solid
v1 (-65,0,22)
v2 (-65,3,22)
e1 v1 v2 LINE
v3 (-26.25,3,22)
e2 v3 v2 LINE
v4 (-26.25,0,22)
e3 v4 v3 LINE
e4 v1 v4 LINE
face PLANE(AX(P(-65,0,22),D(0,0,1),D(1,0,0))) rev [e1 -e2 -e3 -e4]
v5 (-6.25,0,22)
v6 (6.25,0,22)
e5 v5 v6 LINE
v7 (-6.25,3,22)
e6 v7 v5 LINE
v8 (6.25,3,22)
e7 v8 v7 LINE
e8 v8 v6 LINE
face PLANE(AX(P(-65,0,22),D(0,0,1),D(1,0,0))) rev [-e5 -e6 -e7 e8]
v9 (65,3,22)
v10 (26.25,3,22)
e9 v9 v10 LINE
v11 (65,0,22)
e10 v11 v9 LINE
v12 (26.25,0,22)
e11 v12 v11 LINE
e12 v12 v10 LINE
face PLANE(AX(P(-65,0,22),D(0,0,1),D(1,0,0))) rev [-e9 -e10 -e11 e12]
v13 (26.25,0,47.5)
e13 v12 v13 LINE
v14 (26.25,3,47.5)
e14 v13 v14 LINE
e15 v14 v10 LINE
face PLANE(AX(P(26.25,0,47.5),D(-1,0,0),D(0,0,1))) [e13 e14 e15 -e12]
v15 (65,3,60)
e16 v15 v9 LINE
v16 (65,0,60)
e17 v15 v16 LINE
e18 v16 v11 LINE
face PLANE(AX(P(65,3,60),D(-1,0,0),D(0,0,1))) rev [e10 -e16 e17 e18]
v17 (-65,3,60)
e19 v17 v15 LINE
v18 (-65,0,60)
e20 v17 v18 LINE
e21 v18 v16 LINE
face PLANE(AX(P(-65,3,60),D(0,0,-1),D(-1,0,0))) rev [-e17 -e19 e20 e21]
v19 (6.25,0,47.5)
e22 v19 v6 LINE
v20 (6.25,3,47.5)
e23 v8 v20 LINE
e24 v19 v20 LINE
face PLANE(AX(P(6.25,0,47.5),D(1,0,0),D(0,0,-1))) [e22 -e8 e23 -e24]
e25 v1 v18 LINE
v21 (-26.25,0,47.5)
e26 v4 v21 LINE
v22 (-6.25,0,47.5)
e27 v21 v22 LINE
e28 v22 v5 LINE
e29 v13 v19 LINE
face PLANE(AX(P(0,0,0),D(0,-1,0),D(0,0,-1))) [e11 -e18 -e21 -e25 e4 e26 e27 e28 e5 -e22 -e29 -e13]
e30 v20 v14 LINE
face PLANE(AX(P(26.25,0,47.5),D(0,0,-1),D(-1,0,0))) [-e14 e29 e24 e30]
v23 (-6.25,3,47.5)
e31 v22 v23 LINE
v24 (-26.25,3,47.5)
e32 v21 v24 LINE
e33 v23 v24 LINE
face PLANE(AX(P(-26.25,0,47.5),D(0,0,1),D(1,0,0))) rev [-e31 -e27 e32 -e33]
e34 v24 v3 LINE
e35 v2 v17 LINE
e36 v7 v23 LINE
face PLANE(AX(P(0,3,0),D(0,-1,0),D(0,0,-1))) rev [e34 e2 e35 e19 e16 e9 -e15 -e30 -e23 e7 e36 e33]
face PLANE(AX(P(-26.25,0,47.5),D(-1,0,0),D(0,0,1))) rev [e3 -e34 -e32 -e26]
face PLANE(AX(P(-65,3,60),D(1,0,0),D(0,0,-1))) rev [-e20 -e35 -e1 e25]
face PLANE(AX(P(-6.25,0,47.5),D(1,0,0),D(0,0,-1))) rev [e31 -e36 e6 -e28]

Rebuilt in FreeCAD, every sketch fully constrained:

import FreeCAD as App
import Part
import Sketcher
from FreeCAD import Vector
Q = App.Units.Quantity


def add_polygon(sketch, points):
    """Adds a closed chain of lines whose ends are joined by coincident constraints."""
    first, n = sketch.GeometryCount, len(points)
    for a, b in zip(points, points[1:] + points[:1]):
        sketch.addGeometry(Part.LineSegment(App.Vector(*a, 0), App.Vector(*b, 0)), False)
    for i in range(n):
        sketch.addConstraint(Sketcher.Constraint("Coincident", first + i, 2, first + (i + 1) % n, 1))

doc = App.newDocument("Part")
params = doc.addObject("Spreadsheet::Sheet", "Params")
for row, (alias, value) in enumerate([
    ("sketch1_width", "130 mm"),
    ("sketch1_height", "120 mm"),
    ("pad1_length", "3 mm"),
    ("sketch2_width", "20 mm"),
    ("sketch2_height", "95 mm"),
    ("pocket1_length", "5 mm"),
    ("sketch3_diameter", "3.2 mm"),
    ("pocket2_length", "5 mm"),
    ("sketch4_width", "130 mm"),
    ("sketch4_height", "82 mm"),
], start=1):
    params.set(f"A{row}", alias)
    params.set(f"B{row}", "=" + value)
    params.setAlias(f"B{row}", alias)

body = doc.addObject("PartDesign::Body", "Body")

# Sketch on XZ plane
sketch1 = body.newObject("Sketcher::SketchObject", "Sketch")
sketch1.AttachmentSupport = (doc.getObject("XZ_Plane"), [""])
sketch1.MapMode = "FlatFace"
add_polygon(sketch1, [(-65, -60), (-65, 60), (65, 60), (65, -60)])  # lines 0-3
sketch1.addConstraint([
    Sketcher.Constraint("Vertical", 0),
    Sketcher.Constraint("Horizontal", 1),
    Sketcher.Constraint("Vertical", 2),
    Sketcher.Constraint("Horizontal", 3),
    Sketcher.Constraint("Symmetric", 0, 2, 2, 2, -1, 1),
    Sketcher.Constraint("DistanceX", 1, 1, 1, 2, Q("130 mm")),
    Sketcher.Constraint("DistanceY", 0, 1, 0, 2, Q("120 mm")),
])
sketch1.setExpression("Constraints[9]", "Params.sketch1_width")
sketch1.setExpression("Constraints[10]", "Params.sketch1_height")
pad1 = body.newObject("PartDesign::Pad", "Pad")
pad1.Profile = sketch1
pad1.setExpression("Length", "Params.pad1_length")
pad1.Reversed = True

# Sketch on XZ plane
sketch2 = body.newObject("Sketcher::SketchObject", "Sketch001")
sketch2.AttachmentSupport = (doc.getObject("XZ_Plane"), [""])
sketch2.MapMode = "FlatFace"
sketch2.AttachmentOffset = App.Placement(Vector(0, 0, 1), App.Rotation())
add_polygon(sketch2, [(-26, -48), (-26, 48), (-6, 48), (-6, -48)])  # lines 0-3
sketch2.addConstraint([
    Sketcher.Constraint("Vertical", 0),
    Sketcher.Constraint("Horizontal", 1),
    Sketcher.Constraint("Vertical", 2),
    Sketcher.Constraint("Horizontal", 3),
    Sketcher.Constraint("DistanceX", 1, 1, 1, 2, Q("20 mm")),
    Sketcher.Constraint("DistanceY", 0, 1, 0, 2, Q("95 mm")),
    Sketcher.Constraint("DistanceY", -1, 1, 0, 2, Q("47.5 mm")),
    Sketcher.Constraint("DistanceX", 0, 2, -1, 1, Q("26.25 mm")),
])
sketch2.setExpression("Constraints[8]", "Params.sketch2_width")
sketch2.setExpression("Constraints[9]", "Params.sketch2_height")
pocket1 = body.newObject("PartDesign::Pocket", "Pocket")
pocket1.Profile = sketch2
pocket1.setExpression("Length", "Params.pocket1_length")
doc.recompute()

mirrored = body.newObject("PartDesign::Mirrored", "Mirrored")
mirrored.Originals = [pocket1]
mirrored.MirrorPlane = (doc.getObject("YZ_Plane"), [""])
body.Tip = mirrored

# Sketch on XZ plane
sketch3 = body.newObject("Sketcher::SketchObject", "Sketch002")
sketch3.AttachmentSupport = (doc.getObject("XZ_Plane"), [""])
sketch3.MapMode = "FlatFace"
sketch3.AttachmentOffset = App.Placement(Vector(0, 0, 1), App.Rotation())
sketch3.addGeometry(Part.Circle(Vector(44.5, 0, 0), Vector(0, 0, 1), 1.6), False)
sketch3.addConstraint([
    Sketcher.Constraint("PointOnObject", 0, 3, -1),
    Sketcher.Constraint("Diameter", 0, Q("3.2 mm")),
    Sketcher.Constraint("DistanceX", -1, 1, 0, 3, Q("44.5 mm")),
])
sketch3.setExpression("Constraints[1]", "Params.sketch3_diameter")
pocket2 = body.newObject("PartDesign::Pocket", "Pocket001")
pocket2.Profile = sketch3
pocket2.setExpression("Length", "Params.pocket2_length")
doc.recompute()

mirrored2 = body.newObject("PartDesign::Mirrored", "Mirrored001")
mirrored2.Originals = [pocket2]
mirrored2.MirrorPlane = (doc.getObject("YZ_Plane"), [""])
body.Tip = mirrored2

# Sketch on XZ plane
sketch4 = body.newObject("Sketcher::SketchObject", "Sketch003")
sketch4.AttachmentSupport = (doc.getObject("XZ_Plane"), [""])
sketch4.MapMode = "FlatFace"
sketch4.AttachmentOffset = App.Placement(Vector(0, 0, -3), App.Rotation())
add_polygon(sketch4, [(-65, -60), (-65, 22), (65, 22), (65, -60)])  # lines 0-3
sketch4.addConstraint([
    Sketcher.Constraint("Vertical", 0),
    Sketcher.Constraint("Horizontal", 1),
    Sketcher.Constraint("Vertical", 2),
    Sketcher.Constraint("Horizontal", 3),
    Sketcher.Constraint("DistanceX", 1, 1, 1, 2, Q("130 mm")),
    Sketcher.Constraint("DistanceY", 0, 1, 0, 2, Q("82 mm")),
    Sketcher.Constraint("DistanceX", 0, 2, -1, 1, Q("65 mm")),
    Sketcher.Constraint("DistanceY", -1, 1, 0, 2, Q("22 mm")),
])
sketch4.setExpression("Constraints[8]", "Params.sketch4_width")
sketch4.setExpression("Constraints[9]", "Params.sketch4_height")
pocket3 = body.newObject("PartDesign::Pocket", "Pocket002")
pocket3.Profile = sketch4
pocket3.Type = "ThroughAll"
pocket3.Midplane = True

doc.recompute()
